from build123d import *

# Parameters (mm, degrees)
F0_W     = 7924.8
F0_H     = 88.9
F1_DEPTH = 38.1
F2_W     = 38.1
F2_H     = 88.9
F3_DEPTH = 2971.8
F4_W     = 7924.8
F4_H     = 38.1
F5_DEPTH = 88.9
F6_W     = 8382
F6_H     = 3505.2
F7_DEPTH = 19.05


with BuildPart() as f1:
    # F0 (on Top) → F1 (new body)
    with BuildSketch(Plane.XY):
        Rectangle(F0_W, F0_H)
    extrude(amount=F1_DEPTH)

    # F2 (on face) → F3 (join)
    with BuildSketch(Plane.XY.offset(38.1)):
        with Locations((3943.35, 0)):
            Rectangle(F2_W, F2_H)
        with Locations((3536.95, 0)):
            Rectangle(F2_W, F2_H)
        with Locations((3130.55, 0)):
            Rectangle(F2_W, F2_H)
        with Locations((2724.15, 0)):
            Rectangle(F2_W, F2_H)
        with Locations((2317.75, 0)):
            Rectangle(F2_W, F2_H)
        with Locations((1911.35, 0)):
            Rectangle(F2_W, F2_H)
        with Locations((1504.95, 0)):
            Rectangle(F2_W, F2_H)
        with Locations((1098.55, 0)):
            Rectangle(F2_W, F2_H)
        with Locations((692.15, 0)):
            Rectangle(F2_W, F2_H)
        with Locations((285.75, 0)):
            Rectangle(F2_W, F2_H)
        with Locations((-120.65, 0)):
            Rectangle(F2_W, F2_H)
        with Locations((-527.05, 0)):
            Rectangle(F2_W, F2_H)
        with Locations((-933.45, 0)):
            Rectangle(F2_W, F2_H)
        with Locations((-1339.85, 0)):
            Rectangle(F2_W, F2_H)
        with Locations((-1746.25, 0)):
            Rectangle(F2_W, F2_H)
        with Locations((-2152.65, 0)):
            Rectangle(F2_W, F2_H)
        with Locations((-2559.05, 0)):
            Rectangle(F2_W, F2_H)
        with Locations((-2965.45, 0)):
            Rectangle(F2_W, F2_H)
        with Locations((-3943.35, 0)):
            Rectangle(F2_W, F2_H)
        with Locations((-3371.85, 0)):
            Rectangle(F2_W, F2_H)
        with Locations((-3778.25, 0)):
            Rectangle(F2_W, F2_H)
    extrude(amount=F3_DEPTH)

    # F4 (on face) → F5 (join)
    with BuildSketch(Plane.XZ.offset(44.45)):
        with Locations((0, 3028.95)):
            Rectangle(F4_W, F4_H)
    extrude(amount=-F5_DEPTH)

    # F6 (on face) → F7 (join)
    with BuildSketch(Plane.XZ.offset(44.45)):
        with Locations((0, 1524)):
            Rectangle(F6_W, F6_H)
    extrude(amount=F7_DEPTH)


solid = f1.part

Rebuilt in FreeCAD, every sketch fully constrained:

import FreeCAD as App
import Part
import Sketcher

V = App.Vector
Q = App.Units.Quantity

doc = App.newDocument("Part")
body = doc.addObject("PartDesign::Body", "Body")

# Sketch on XY plane
sketch1 = body.newObject("Sketcher::SketchObject", "Sketch")
sketch1.AttachmentSupport = (doc.getObject("XY_Plane"), [""])
sketch1.MapMode = "FlatFace"
sketch1.addGeometry([
    Part.LineSegment(V(-3962, 44, 0), V(-3962, -44, 0)),
    Part.LineSegment(V(-3962, -44, 0), V(3962, -44, 0)),
    Part.LineSegment(V(3962, -44, 0), V(3962, 44, 0)),
    Part.LineSegment(V(3962, 44, 0), V(-3962, 44, 0)),
], False)
sketch1.addConstraint([
    Sketcher.Constraint("Coincident", 0, 2, 1, 1),
    Sketcher.Constraint("Coincident", 1, 2, 2, 1),
    Sketcher.Constraint("Coincident", 2, 2, 3, 1),
    Sketcher.Constraint("Coincident", 3, 2, 0, 1),
    Sketcher.Constraint("Vertical", 0),
    Sketcher.Constraint("Horizontal", 1),
    Sketcher.Constraint("Vertical", 2),
    Sketcher.Constraint("Horizontal", 3),
    Sketcher.Constraint("Symmetric", 0, 2, 2, 2, -1, 1),
    Sketcher.Constraint("DistanceX", 1, 1, 1, 2, Q("312 in")),
    Sketcher.Constraint("DistanceY", 0, 2, 0, 1, Q("3.5 in")),
])
pad1 = body.newObject("PartDesign::Pad", "Pad")
pad1.Profile = sketch1
pad1.Length = Q("1.5 in")

# Sketch on XY plane
sketch2 = body.newObject("Sketcher::SketchObject", "Sketch001")
sketch2.AttachmentSupport = (doc.getObject("XY_Plane"), [""])
sketch2.MapMode = "FlatFace"
sketch2.AttachmentOffset = App.Placement(V(0, 0, 1.5 * 25.4), App.Rotation())
sketch2.addGeometry([
    Part.LineSegment(V(3924, 44, 0), V(3924, -44, 0)),  # 0
    Part.LineSegment(V(3924, -44, 0), V(3962, -44, 0)),  # 1
    Part.LineSegment(V(3962, -44, 0), V(3962, 44, 0)),  # 2
    Part.LineSegment(V(3962, 44, 0), V(3924, 44, 0)),  # 3
    Part.LineSegment(V(3518, 44, 0), V(3518, -44, 0)),  # 4
    Part.LineSegment(V(3518, -44, 0), V(3556, -44, 0)),  # 5
    Part.LineSegment(V(3556, -44, 0), V(3556, 44, 0)),  # 6
    Part.LineSegment(V(3556, 44, 0), V(3518, 44, 0)),  # 7
    Part.LineSegment(V(3112, 44, 0), V(3112, -44, 0)),  # 8
    Part.LineSegment(V(3112, -44, 0), V(3150, -44, 0)),  # 9
    Part.LineSegment(V(3150, -44, 0), V(3150, 44, 0)),  # 10
    Part.LineSegment(V(3150, 44, 0), V(3112, 44, 0)),  # 11
    Part.LineSegment(V(2705, 44, 0), V(2705, -44, 0)),  # 12
    Part.LineSegment(V(2705, -44, 0), V(2743, -44, 0)),  # 13
    Part.LineSegment(V(2743, -44, 0), V(2743, 44, 0)),  # 14
    Part.LineSegment(V(2743, 44, 0), V(2705, 44, 0)),  # 15
    Part.LineSegment(V(2299, 44, 0), V(2299, -44, 0)),  # 16
    Part.LineSegment(V(2299, -44, 0), V(2337, -44, 0)),  # 17
    Part.LineSegment(V(2337, -44, 0), V(2337, 44, 0)),  # 18
    Part.LineSegment(V(2337, 44, 0), V(2299, 44, 0)),  # 19
    Part.LineSegment(V(1892, 44, 0), V(1892, -44, 0)),  # 20
    Part.LineSegment(V(1892, -44, 0), V(1930, -44, 0)),  # 21
    Part.LineSegment(V(1930, -44, 0), V(1930, 44, 0)),  # 22
    Part.LineSegment(V(1930, 44, 0), V(1892, 44, 0)),  # 23
    Part.LineSegment(V(1486, 44, 0), V(1486, -44, 0)),  # 24
    Part.LineSegment(V(1486, -44, 0), V(1524, -44, 0)),  # 25
    Part.LineSegment(V(1524, -44, 0), V(1524, 44, 0)),  # 26
    Part.LineSegment(V(1524, 44, 0), V(1486, 44, 0)),  # 27
    Part.LineSegment(V(1080, 44, 0), V(1080, -44, 0)),  # 28
    Part.LineSegment(V(1080, -44, 0), V(1118, -44, 0)),  # 29
    Part.LineSegment(V(1118, -44, 0), V(1118, 44, 0)),  # 30
    Part.LineSegment(V(1118, 44, 0), V(1080, 44, 0)),  # 31
    Part.LineSegment(V(673, 44, 0), V(673, -44, 0)),  # 32
    Part.LineSegment(V(673, -44, 0), V(711, -44, 0)),  # 33
    Part.LineSegment(V(711, -44, 0), V(711, 44, 0)),  # 34
    Part.LineSegment(V(711, 44, 0), V(673, 44, 0)),  # 35
    Part.LineSegment(V(267, 44, 0), V(267, -44, 0)),  # 36
    Part.LineSegment(V(267, -44, 0), V(305, -44, 0)),  # 37
    Part.LineSegment(V(305, -44, 0), V(305, 44, 0)),  # 38
    Part.LineSegment(V(305, 44, 0), V(267, 44, 0)),  # 39
    Part.LineSegment(V(-140, 44, 0), V(-140, -44, 0)),  # 40
    Part.LineSegment(V(-140, -44, 0), V(-102, -44, 0)),  # 41
    Part.LineSegment(V(-102, -44, 0), V(-102, 44, 0)),  # 42
    Part.LineSegment(V(-102, 44, 0), V(-140, 44, 0)),  # 43
    Part.LineSegment(V(-546, 44, 0), V(-546, -44, 0)),  # 44
    Part.LineSegment(V(-546, -44, 0), V(-508, -44, 0)),  # 45
    Part.LineSegment(V(-508, -44, 0), V(-508, 44, 0)),  # 46
    Part.LineSegment(V(-508, 44, 0), V(-546, 44, 0)),  # 47
    Part.LineSegment(V(-952, 44, 0), V(-952, -44, 0)),  # 48
    Part.LineSegment(V(-952, -44, 0), V(-914, -44, 0)),  # 49
    Part.LineSegment(V(-914, -44, 0), V(-914, 44, 0)),  # 50
    Part.LineSegment(V(-914, 44, 0), V(-952, 44, 0)),  # 51
    Part.LineSegment(V(-1359, 44, 0), V(-1359, -44, 0)),  # 52
    Part.LineSegment(V(-1359, -44, 0), V(-1321, -44, 0)),  # 53
    Part.LineSegment(V(-1321, -44, 0), V(-1321, 44, 0)),  # 54
    Part.LineSegment(V(-1321, 44, 0), V(-1359, 44, 0)),  # 55
    Part.LineSegment(V(-1765, 44, 0), V(-1765, -44, 0)),  # 56
    Part.LineSegment(V(-1765, -44, 0), V(-1727, -44, 0)),  # 57
    Part.LineSegment(V(-1727, -44, 0), V(-1727, 44, 0)),  # 58
    Part.LineSegment(V(-1727, 44, 0), V(-1765, 44, 0)),  # 59
    Part.LineSegment(V(-2172, 44, 0), V(-2172, -44, 0)),  # 60
    Part.LineSegment(V(-2172, -44, 0), V(-2134, -44, 0)),  # 61
    Part.LineSegment(V(-2134, -44, 0), V(-2134, 44, 0)),  # 62
    Part.LineSegment(V(-2134, 44, 0), V(-2172, 44, 0)),  # 63
    Part.LineSegment(V(-2578, 44, 0), V(-2578, -44, 0)),  # 64
    Part.LineSegment(V(-2578, -44, 0), V(-2540, -44, 0)),  # 65
    Part.LineSegment(V(-2540, -44, 0), V(-2540, 44, 0)),  # 66
    Part.LineSegment(V(-2540, 44, 0), V(-2578, 44, 0)),  # 67
    Part.LineSegment(V(-2984, 44, 0), V(-2984, -44, 0)),  # 68
    Part.LineSegment(V(-2984, -44, 0), V(-2946, -44, 0)),  # 69
    Part.LineSegment(V(-2946, -44, 0), V(-2946, 44, 0)),  # 70
    Part.LineSegment(V(-2946, 44, 0), V(-2984, 44, 0)),  # 71
    Part.LineSegment(V(-3962, 44, 0), V(-3962, -44, 0)),  # 72
    Part.LineSegment(V(-3962, -44, 0), V(-3924, -44, 0)),  # 73
    Part.LineSegment(V(-3924, -44, 0), V(-3924, 44, 0)),  # 74
    Part.LineSegment(V(-3924, 44, 0), V(-3962, 44, 0)),  # 75
    Part.LineSegment(V(-3391, 44, 0), V(-3391, -44, 0)),  # 76
    Part.LineSegment(V(-3391, -44, 0), V(-3353, -44, 0)),  # 77
    Part.LineSegment(V(-3353, -44, 0), V(-3353, 44, 0)),  # 78
    Part.LineSegment(V(-3353, 44, 0), V(-3391, 44, 0)),  # 79
    Part.LineSegment(V(-3797, 44, 0), V(-3797, -44, 0)),  # 80
    Part.LineSegment(V(-3797, -44, 0), V(-3759, -44, 0)),  # 81
    Part.LineSegment(V(-3759, -44, 0), V(-3759, 44, 0)),  # 82
    Part.LineSegment(V(-3759, 44, 0), V(-3797, 44, 0)),  # 83
], False)
sketch2.addConstraint([
    Sketcher.Constraint("Coincident", 0, 2, 1, 1),
    Sketcher.Constraint("Coincident", 1, 2, 2, 1),
    Sketcher.Constraint("Coincident", 2, 2, 3, 1),
    Sketcher.Constraint("Coincident", 3, 2, 0, 1),
    Sketcher.Constraint("Coincident", 4, 2, 5, 1),
    Sketcher.Constraint("Coincident", 5, 2, 6, 1),
    Sketcher.Constraint("Coincident", 6, 2, 7, 1),
    Sketcher.Constraint("Coincident", 7, 2, 4, 1),
    Sketcher.Constraint("Coincident", 8, 2, 9, 1),
    Sketcher.Constraint("Coincident", 9, 2, 10, 1),
    Sketcher.Constraint("Coincident", 10, 2, 11, 1),
    Sketcher.Constraint("Coincident", 11, 2, 8, 1),
    Sketcher.Constraint("Coincident", 12, 2, 13, 1),
    Sketcher.Constraint("Coincident", 13, 2, 14, 1),
    Sketcher.Constraint("Coincident", 14, 2, 15, 1),
    Sketcher.Constraint("Coincident", 15, 2, 12, 1),
    Sketcher.Constraint("Coincident", 16, 2, 17, 1),
    Sketcher.Constraint("Coincident", 17, 2, 18, 1),
    Sketcher.Constraint("Coincident", 18, 2, 19, 1),
    Sketcher.Constraint("Coincident", 19, 2, 16, 1),
    Sketcher.Constraint("Coincident", 20, 2, 21, 1),
    Sketcher.Constraint("Coincident", 21, 2, 22, 1),
    Sketcher.Constraint("Coincident", 22, 2, 23, 1),
    Sketcher.Constraint("Coincident", 23, 2, 20, 1),
    Sketcher.Constraint("Coincident", 24, 2, 25, 1),
    Sketcher.Constraint("Coincident", 25, 2, 26, 1),
    Sketcher.Constraint("Coincident", 26, 2, 27, 1),
    Sketcher.Constraint("Coincident", 27, 2, 24, 1),
    Sketcher.Constraint("Coincident", 28, 2, 29, 1),
    Sketcher.Constraint("Coincident", 29, 2, 30, 1),
    Sketcher.Constraint("Coincident", 30, 2, 31, 1),
    Sketcher.Constraint("Coincident", 31, 2, 28, 1),
    Sketcher.Constraint("Coincident", 32, 2, 33, 1),
    Sketcher.Constraint("Coincident", 33, 2, 34, 1),
    Sketcher.Constraint("Coincident", 34, 2, 35, 1),
    Sketcher.Constraint("Coincident", 35, 2, 32, 1),
    Sketcher.Constraint("Coincident", 36, 2, 37, 1),
    Sketcher.Constraint("Coincident", 37, 2, 38, 1),
    Sketcher.Constraint("Coincident", 38, 2, 39, 1),
    Sketcher.Constraint("Coincident", 39, 2, 36, 1),
    Sketcher.Constraint("Coincident", 40, 2, 41, 1),
    Sketcher.Constraint("Coincident", 41, 2, 42, 1),
    Sketcher.Constraint("Coincident", 42, 2, 43, 1),
    Sketcher.Constraint("Coincident", 43, 2, 40, 1),
    Sketcher.Constraint("Coincident", 44, 2, 45, 1),
    Sketcher.Constraint("Coincident", 45, 2, 46, 1),
    Sketcher.Constraint("Coincident", 46, 2, 47, 1),
    Sketcher.Constraint("Coincident", 47, 2, 44, 1),
    Sketcher.Constraint("Coincident", 48, 2, 49, 1),
    Sketcher.Constraint("Coincident", 49, 2, 50, 1),
    Sketcher.Constraint("Coincident", 50, 2, 51, 1),
    Sketcher.Constraint("Coincident", 51, 2, 48, 1),
    Sketcher.Constraint("Coincident", 52, 2, 53, 1),
    Sketcher.Constraint("Coincident", 53, 2, 54, 1),
    Sketcher.Constraint("Coincident", 54, 2, 55, 1),
    Sketcher.Constraint("Coincident", 55, 2, 52, 1),
    Sketcher.Constraint("Coincident", 56, 2, 57, 1),
    Sketcher.Constraint("Coincident", 57, 2, 58, 1),
    Sketcher.Constraint("Coincident", 58, 2, 59, 1),
    Sketcher.Constraint("Coincident", 59, 2, 56, 1),
    Sketcher.Constraint("Coincident", 60, 2, 61, 1),
    Sketcher.Constraint("Coincident", 61, 2, 62, 1),
    Sketcher.Constraint("Coincident", 62, 2, 63, 1),
    Sketcher.Constraint("Coincident", 63, 2, 60, 1),
    Sketcher.Constraint("Coincident", 64, 2, 65, 1),
    Sketcher.Constraint("Coincident", 65, 2, 66, 1),
    Sketcher.Constraint("Coincident", 66, 2, 67, 1),
    Sketcher.Constraint("Coincident", 67, 2, 64, 1),
    Sketcher.Constraint("Coincident", 68, 2, 69, 1),
    Sketcher.Constraint("Coincident", 69, 2, 70, 1),
    Sketcher.Constraint("Coincident", 70, 2, 71, 1),
    Sketcher.Constraint("Coincident", 71, 2, 68, 1),
    Sketcher.Constraint("Coincident", 72, 2, 73, 1),
    Sketcher.Constraint("Coincident", 73, 2, 74, 1),
    Sketcher.Constraint("Coincident", 74, 2, 75, 1),
    Sketcher.Constraint("Coincident", 75, 2, 72, 1),
    Sketcher.Constraint("Coincident", 76, 2, 77, 1),
    Sketcher.Constraint("Coincident", 77, 2, 78, 1),
    Sketcher.Constraint("Coincident", 78, 2, 79, 1),
    Sketcher.Constraint("Coincident", 79, 2, 76, 1),
    Sketcher.Constraint("Coincident", 80, 2, 81, 1),
    Sketcher.Constraint("Coincident", 81, 2, 82, 1),
    Sketcher.Constraint("Coincident", 82, 2, 83, 1),
    Sketcher.Constraint("Coincident", 83, 2, 80, 1),
    Sketcher.Constraint("Vertical", 0),
    Sketcher.Constraint("Horizontal", 1),
    Sketcher.Constraint("Vertical", 2),
    Sketcher.Constraint("Horizontal", 3),
    Sketcher.Constraint("Vertical", 4),
    Sketcher.Constraint("Horizontal", 5),
    Sketcher.Constraint("Vertical", 6),
    Sketcher.Constraint("Horizontal", 7),
    Sketcher.Constraint("Vertical", 8),
    Sketcher.Constraint("Horizontal", 9),
    Sketcher.Constraint("Vertical", 10),
    Sketcher.Constraint("Horizontal", 11),
    Sketcher.Constraint("Vertical", 12),
    Sketcher.Constraint("Horizontal", 13),
    Sketcher.Constraint("Vertical", 14),
    Sketcher.Constraint("Horizontal", 15),
    Sketcher.Constraint("Vertical", 16),
    Sketcher.Constraint("Horizontal", 17),
    Sketcher.Constraint("Vertical", 18),
    Sketcher.Constraint("Horizontal", 19),
    Sketcher.Constraint("Vertical", 20),
    Sketcher.Constraint("Horizontal", 21),
    Sketcher.Constraint("Vertical", 22),
    Sketcher.Constraint("Horizontal", 23),
    Sketcher.Constraint("Vertical", 24),
    Sketcher.Constraint("Horizontal", 25),
    Sketcher.Constraint("Vertical", 26),
    Sketcher.Constraint("Horizontal", 27),
    Sketcher.Constraint("Vertical", 28),
    Sketcher.Constraint("Horizontal", 29),
    Sketcher.Constraint("Vertical", 30),
    Sketcher.Constraint("Horizontal", 31),
    Sketcher.Constraint("Vertical", 32),
    Sketcher.Constraint("Horizontal", 33),
    Sketcher.Constraint("Vertical", 34),
    Sketcher.Constraint("Horizontal", 35),
    Sketcher.Constraint("Vertical", 36),
    Sketcher.Constraint("Horizontal", 37),
    Sketcher.Constraint("Vertical", 38),
    Sketcher.Constraint("Horizontal", 39),
    Sketcher.Constraint("Vertical", 40),
    Sketcher.Constraint("Horizontal", 41),
    Sketcher.Constraint("Vertical", 42),
    Sketcher.Constraint("Horizontal", 43),
    Sketcher.Constraint("Vertical", 44),
    Sketcher.Constraint("Horizontal", 45),
    Sketcher.Constraint("Vertical", 46),
    Sketcher.Constraint("Horizontal", 47),
    Sketcher.Constraint("Vertical", 48),
    Sketcher.Constraint("Horizontal", 49),
    Sketcher.Constraint("Vertical", 50),
    Sketcher.Constraint("Horizontal", 51),
    Sketcher.Constraint("Vertical", 52),
    Sketcher.Constraint("Horizontal", 53),
    Sketcher.Constraint("Vertical", 54),
    Sketcher.Constraint("Horizontal", 55),
    Sketcher.Constraint("Vertical", 56),
    Sketcher.Constraint("Horizontal", 57),
    Sketcher.Constraint("Vertical", 58),
    Sketcher.Constraint("Horizontal", 59),
    Sketcher.Constraint("Vertical", 60),
    Sketcher.Constraint("Horizontal", 61),
    Sketcher.Constraint("Vertical", 62),
    Sketcher.Constraint("Horizontal", 63),
    Sketcher.Constraint("Vertical", 64),
    Sketcher.Constraint("Horizontal", 65),
    Sketcher.Constraint("Vertical", 66),
    Sketcher.Constraint("Horizontal", 67),
    Sketcher.Constraint("Vertical", 68),
    Sketcher.Constraint("Horizontal", 69),
    Sketcher.Constraint("Vertical", 70),
    Sketcher.Constraint("Horizontal", 71),
    Sketcher.Constraint("Vertical", 72),
    Sketcher.Constraint("Horizontal", 73),
    Sketcher.Constraint("Vertical", 74),
    Sketcher.Constraint("Horizontal", 75),
    Sketcher.Constraint("Vertical", 76),
    Sketcher.Constraint("Horizontal", 77),
    Sketcher.Constraint("Vertical", 78),
    Sketcher.Constraint("Horizontal", 79),
    Sketcher.Constraint("Vertical", 80),
    Sketcher.Constraint("Horizontal", 81),
    Sketcher.Constraint("Vertical", 82),
    Sketcher.Constraint("Horizontal", 83),
    Sketcher.Constraint("Symmetric", 2, 2, 72, 2, -1, 1),
    Sketcher.Constraint("Symmetric", 0, 2, 74, 2, -1, 1),
    Sketcher.Constraint("Horizontal", 1, 2, 4, 2),
    Sketcher.Constraint("Horizontal", 3, 2, 6, 2),
    Sketcher.Constraint("Horizontal", 5, 2, 8, 2),
    Sketcher.Constraint("Horizontal", 7, 2, 10, 2),
    Sketcher.Constraint("Horizontal", 9, 2, 12, 2),
    Sketcher.Constraint("Horizontal", 11, 2, 14, 2),
    Sketcher.Constraint("Horizontal", 13, 2, 16, 2),
    Sketcher.Constraint("Horizontal", 15, 2, 18, 2),
    Sketcher.Constraint("Horizontal", 17, 2, 20, 2),
    Sketcher.Constraint("Horizontal", 19, 2, 22, 2),
    Sketcher.Constraint("Horizontal", 21, 2, 24, 2),
    Sketcher.Constraint("Horizontal", 23, 2, 26, 2),
    Sketcher.Constraint("Horizontal", 25, 2, 28, 2),
    Sketcher.Constraint("Horizontal", 27, 2, 30, 2),
    Sketcher.Constraint("Horizontal", 29, 2, 32, 2),
    Sketcher.Constraint("Horizontal", 31, 2, 34, 2),
    Sketcher.Constraint("Horizontal", 33, 2, 36, 2),
    Sketcher.Constraint("Horizontal", 35, 2, 38, 2),
    Sketcher.Constraint("Horizontal", 37, 2, 40, 2),
    Sketcher.Constraint("Horizontal", 39, 2, 42, 2),
    Sketcher.Constraint("Horizontal", 41, 2, 44, 2),
    Sketcher.Constraint("Horizontal", 43, 2, 46, 2),
    Sketcher.Constraint("Horizontal", 45, 2, 48, 2),
    Sketcher.Constraint("Horizontal", 47, 2, 50, 2),
    Sketcher.Constraint("Horizontal", 49, 2, 52, 2),
    Sketcher.Constraint("Horizontal", 51, 2, 54, 2),
    Sketcher.Constraint("Horizontal", 53, 2, 56, 2),
    Sketcher.Constraint("Horizontal", 55, 2, 58, 2),
    Sketcher.Constraint("Horizontal", 57, 2, 60, 2),
    Sketcher.Constraint("Horizontal", 59, 2, 62, 2),
    Sketcher.Constraint("Horizontal", 61, 2, 64, 2),
    Sketcher.Constraint("Horizontal", 63, 2, 66, 2),
    Sketcher.Constraint("Horizontal", 65, 2, 68, 2),
    Sketcher.Constraint("Horizontal", 67, 2, 70, 2),
    Sketcher.Constraint("Horizontal", 69, 2, 72, 2),
    Sketcher.Constraint("Horizontal", 73, 2, 76, 2),
    Sketcher.Constraint("Horizontal", 75, 2, 78, 2),
    Sketcher.Constraint("Horizontal", 77, 2, 80, 2),
    Sketcher.Constraint("Horizontal", 79, 2, 82, 2),
    Sketcher.Constraint("Equal", 3, 5),
    Sketcher.Constraint("Equal", 7, 9),
    Sketcher.Constraint("Equal", 11, 13),
    Sketcher.Constraint("Equal", 15, 17),
    Sketcher.Constraint("Equal", 19, 21),
    Sketcher.Constraint("Equal", 23, 25),
    Sketcher.Constraint("Equal", 27, 29),
    Sketcher.Constraint("Equal", 31, 33),
    Sketcher.Constraint("Equal", 35, 37),
    Sketcher.Constraint("Equal", 39, 41),
    Sketcher.Constraint("Equal", 43, 45),
    Sketcher.Constraint("Equal", 47, 49),
    Sketcher.Constraint("Equal", 51, 53),
    Sketcher.Constraint("Equal", 55, 57),
    Sketcher.Constraint("Equal", 59, 61),
    Sketcher.Constraint("Equal", 63, 65),
    Sketcher.Constraint("Equal", 67, 69),
    Sketcher.Constraint("Equal", 75, 77),
    Sketcher.Constraint("Equal", 79, 81),
    Sketcher.Constraint("DistanceX", 1, 1, 1, 2, Q("1.5 in")),
    Sketcher.Constraint("DistanceY", 0, 2, 0, 1, Q("3.5 in")),
    Sketcher.Constraint("DistanceX", -1, 1, 1, 2, Q("156 in")),
    Sketcher.Constraint("DistanceX", -1, 1, 5, 2, Q("140 in")),
    Sketcher.Constraint("DistanceX", -1, 1, 9, 2, Q("124 in")),
    Sketcher.Constraint("DistanceX", -1, 1, 13, 2, Q("108 in")),
    Sketcher.Constraint("DistanceX", -1, 1, 17, 2, Q("92 in")),
    Sketcher.Constraint("DistanceX", -1, 1, 21, 2, Q("76 in")),
    Sketcher.Constraint("DistanceX", -1, 1, 25, 2, Q("60 in")),
    Sketcher.Constraint("DistanceX", -1, 1, 29, 2, Q("44 in")),
    Sketcher.Constraint("DistanceX", -1, 1, 33, 2, Q("28 in")),
    Sketcher.Constraint("DistanceX", -1, 1, 37, 2, Q("12 in")),
    Sketcher.Constraint("DistanceX", 41, 2, -1, 1, Q("4 in")),
    Sketcher.Constraint("DistanceX", 45, 2, -1, 1, Q("20 in")),
    Sketcher.Constraint("DistanceX", 49, 2, -1, 1, Q("36 in")),
    Sketcher.Constraint("DistanceX", 53, 2, -1, 1, Q("52 in")),
    Sketcher.Constraint("DistanceX", 57, 2, -1, 1, Q("68 in")),
    Sketcher.Constraint("DistanceX", 61, 2, -1, 1, Q("84 in")),
    Sketcher.Constraint("DistanceX", 65, 2, -1, 1, Q("100 in")),
    Sketcher.Constraint("DistanceX", 69, 2, -1, 1, Q("116 in")),
    Sketcher.Constraint("DistanceX", 77, 2, -1, 1, Q("132 in")),
    Sketcher.Constraint("DistanceX", 81, 2, -1, 1, Q("148 in")),
])
pad2 = body.newObject("PartDesign::Pad", "Pad001")
pad2.Profile = sketch2
pad2.Length = Q("117 in")

# Sketch on XZ plane
sketch3 = body.newObject("Sketcher::SketchObject", "Sketch002")
sketch3.AttachmentSupport = (doc.getObject("XZ_Plane"), [""])
sketch3.MapMode = "FlatFace"
sketch3.AttachmentOffset = App.Placement(V(0, 0, 1.75 * 25.4), App.Rotation())
sketch3.addGeometry([
    Part.LineSegment(V(-3962, 3048, 0), V(-3962, 3010, 0)),
    Part.LineSegment(V(-3962, 3010, 0), V(3962, 3010, 0)),
    Part.LineSegment(V(3962, 3010, 0), V(3962, 3048, 0)),
    Part.LineSegment(V(3962, 3048, 0), V(-3962, 3048, 0)),
], False)
sketch3.addConstraint([
    Sketcher.Constraint("Coincident", 0, 2, 1, 1),
    Sketcher.Constraint("Coincident", 1, 2, 2, 1),
    Sketcher.Constraint("Coincident", 2, 2, 3, 1),
    Sketcher.Constraint("Coincident", 3, 2, 0, 1),
    Sketcher.Constraint("Vertical", 0),
    Sketcher.Constraint("Horizontal", 1),
    Sketcher.Constraint("Vertical", 2),
    Sketcher.Constraint("Horizontal", 3),
    Sketcher.Constraint("DistanceX", 1, 1, 1, 2, Q("312 in")),
    Sketcher.Constraint("DistanceY", 0, 2, 0, 1, Q("1.5 in")),
    Sketcher.Constraint("DistanceX", 0, 2, -1, 1, Q("156 in")),
    Sketcher.Constraint("DistanceY", -1, 1, 2, 2, Q("120 in")),
])
pad3 = body.newObject("PartDesign::Pad", "Pad002")
pad3.Profile = sketch3
pad3.Length = Q("3.5 in")
pad3.Reversed = True

# Sketch on XZ plane
sketch4 = body.newObject("Sketcher::SketchObject", "Sketch003")
sketch4.AttachmentSupport = (doc.getObject("XZ_Plane"), [""])
sketch4.MapMode = "FlatFace"
sketch4.AttachmentOffset = App.Placement(V(0, 0, 1.75 * 25.4), App.Rotation())
sketch4.addGeometry([
    Part.LineSegment(V(-4191, 3277, 0), V(-4191, -229, 0)),
    Part.LineSegment(V(-4191, -229, 0), V(4191, -229, 0)),
    Part.LineSegment(V(4191, -229, 0), V(4191, 3277, 0)),
    Part.LineSegment(V(4191, 3277, 0), V(-4191, 3277, 0)),
], False)
sketch4.addConstraint([
    Sketcher.Constraint("Coincident", 0, 2, 1, 1),
    Sketcher.Constraint("Coincident", 1, 2, 2, 1),
    Sketcher.Constraint("Coincident", 2, 2, 3, 1),
    Sketcher.Constraint("Coincident", 3, 2, 0, 1),
    Sketcher.Constraint("Vertical", 0),
    Sketcher.Constraint("Horizontal", 1),
    Sketcher.Constraint("Vertical", 2),
    Sketcher.Constraint("Horizontal", 3),
    Sketcher.Constraint("DistanceX", 1, 1, 1, 2, Q("330 in")),
    Sketcher.Constraint("DistanceY", 0, 2, 0, 1, Q("138 in")),
    Sketcher.Constraint("DistanceX", 0, 2, -1, 1, Q("165 in")),
    Sketcher.Constraint("DistanceY", 0, 2, -1, 1, Q("9 in")),
])
pad4 = body.newObject("PartDesign::Pad", "Pad003")
pad4.Profile = sketch4
pad4.Length = Q("0.75 in")

doc.recompute()
